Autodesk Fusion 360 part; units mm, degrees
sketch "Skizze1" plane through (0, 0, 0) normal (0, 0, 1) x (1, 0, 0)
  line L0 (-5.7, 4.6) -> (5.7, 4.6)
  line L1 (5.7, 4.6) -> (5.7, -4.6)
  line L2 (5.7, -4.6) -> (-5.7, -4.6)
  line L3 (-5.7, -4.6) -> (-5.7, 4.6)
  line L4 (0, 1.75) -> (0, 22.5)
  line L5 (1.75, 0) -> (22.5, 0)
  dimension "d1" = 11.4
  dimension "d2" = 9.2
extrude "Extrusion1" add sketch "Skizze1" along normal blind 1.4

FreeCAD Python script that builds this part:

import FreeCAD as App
import Part
import Sketcher


def add_polygon(sketch, points):
    """Adds a closed chain of lines whose ends are joined by coincident constraints."""
    first, n = sketch.GeometryCount, len(points)
    for a, b in zip(points, points[1:] + points[:1]):
        sketch.addGeometry(Part.LineSegment(App.Vector(*a, 0), App.Vector(*b, 0)), False)
    for i in range(n):
        sketch.addConstraint(Sketcher.Constraint("Coincident", first + i, 2, first + (i + 1) % n, 1))

doc = App.newDocument("Part")
body = doc.addObject("PartDesign::Body", "Body")

# Sketch on XY plane
sketch1 = body.newObject("Sketcher::SketchObject", "Sketch")
sketch1.AttachmentSupport = (doc.getObject("XY_Plane"), [""])
sketch1.MapMode = "FlatFace"
add_polygon(sketch1, [(5.7, 4.6), (-5.7, 4.6), (-5.7, -4.6), (5.7, -4.6)])  # lines 0-3
sketch1.addConstraint([
    Sketcher.Constraint("Horizontal", 0),
    Sketcher.Constraint("Vertical", 1),
    Sketcher.Constraint("Horizontal", 2),
    Sketcher.Constraint("Vertical", 3),
    Sketcher.Constraint("Symmetric", 0, 2, 2, 2, -1, 1),
    Sketcher.Constraint("DistanceX", 0, 2, 0, 1, 11.4),
    Sketcher.Constraint("DistanceY", 1, 2, 1, 1, 9.2),
])
pad1 = body.newObject("PartDesign::Pad", "Pad")
pad1.Profile = sketch1
pad1.Length = 1.4

doc.recompute()
